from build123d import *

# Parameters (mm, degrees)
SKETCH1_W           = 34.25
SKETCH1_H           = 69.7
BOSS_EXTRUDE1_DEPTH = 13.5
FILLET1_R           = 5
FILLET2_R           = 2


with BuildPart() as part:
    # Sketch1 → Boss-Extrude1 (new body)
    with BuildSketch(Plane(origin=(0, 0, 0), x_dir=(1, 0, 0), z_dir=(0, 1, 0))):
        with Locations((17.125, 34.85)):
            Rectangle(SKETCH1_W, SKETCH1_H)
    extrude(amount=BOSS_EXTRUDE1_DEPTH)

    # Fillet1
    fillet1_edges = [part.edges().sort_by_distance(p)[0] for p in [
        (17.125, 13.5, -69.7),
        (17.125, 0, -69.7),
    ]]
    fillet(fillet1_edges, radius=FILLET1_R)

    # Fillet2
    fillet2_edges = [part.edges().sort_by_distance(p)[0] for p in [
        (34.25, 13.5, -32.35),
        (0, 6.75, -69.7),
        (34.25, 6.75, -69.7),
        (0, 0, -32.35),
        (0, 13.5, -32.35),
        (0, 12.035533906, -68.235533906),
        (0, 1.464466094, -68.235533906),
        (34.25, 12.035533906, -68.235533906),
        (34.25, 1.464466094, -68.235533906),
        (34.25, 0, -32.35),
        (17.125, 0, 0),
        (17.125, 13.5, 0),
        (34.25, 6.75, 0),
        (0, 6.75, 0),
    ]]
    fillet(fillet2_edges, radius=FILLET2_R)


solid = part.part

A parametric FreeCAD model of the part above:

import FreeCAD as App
import Part
import Sketcher


def edges_at(feature, points):
    """Names of the edges that pass closest to the given points."""
    edges = feature.Shape.Edges
    near = lambda p: min(range(len(edges)), key=lambda i: edges[i].distToShape(Part.Vertex(*p))[0])
    return sorted({f"Edge{near(p) + 1}" for p in points})


def add_polygon(sketch, points):
    """Adds a closed chain of lines whose ends are joined by coincident constraints."""
    first, n = sketch.GeometryCount, len(points)
    for a, b in zip(points, points[1:] + points[:1]):
        sketch.addGeometry(Part.LineSegment(App.Vector(*a, 0), App.Vector(*b, 0)), False)
    for i in range(n):
        sketch.addConstraint(Sketcher.Constraint("Coincident", first + i, 2, first + (i + 1) % n, 1))

doc = App.newDocument("Part")
body = doc.addObject("PartDesign::Body", "Body")

# Sketch on XZ plane
sketch1 = body.newObject("Sketcher::SketchObject", "Sketch")
sketch1.AttachmentSupport = (doc.getObject("XZ_Plane"), [""])
sketch1.MapMode = "FlatFace"
add_polygon(sketch1, [(0, -69.7), (0, 0), (34.25, 0), (34.25, -69.7)])  # lines 0-3
sketch1.addConstraint([
    Sketcher.Constraint("Vertical", 0),
    Sketcher.Constraint("Horizontal", 1),
    Sketcher.Constraint("Vertical", 2),
    Sketcher.Constraint("Horizontal", 3),
    Sketcher.Constraint("Coincident", 0, 2, -1, 1),
    Sketcher.Constraint("DistanceY", 0, 1, 0, 2, 69.7),
    Sketcher.Constraint("DistanceX", 1, 1, 1, 2, 34.25),
])
pad1 = body.newObject("PartDesign::Pad", "Pad")
pad1.Profile = sketch1
pad1.Length = 13.5
pad1.Reversed = True
doc.recompute()

fillet = body.newObject("PartDesign::Fillet", "Fillet")
fillet.Base = (pad1, edges_at(pad1, [(17.125, 13.5, -69.7), (17.125, 0, -69.7)]))
fillet.Radius = 5
doc.recompute()

fillet2 = body.newObject("PartDesign::Fillet", "Fillet001")
fillet2.Base = (fillet, ["Edge1"])
fillet2.UseAllEdges = True
fillet2.Radius = 2

doc.recompute()
